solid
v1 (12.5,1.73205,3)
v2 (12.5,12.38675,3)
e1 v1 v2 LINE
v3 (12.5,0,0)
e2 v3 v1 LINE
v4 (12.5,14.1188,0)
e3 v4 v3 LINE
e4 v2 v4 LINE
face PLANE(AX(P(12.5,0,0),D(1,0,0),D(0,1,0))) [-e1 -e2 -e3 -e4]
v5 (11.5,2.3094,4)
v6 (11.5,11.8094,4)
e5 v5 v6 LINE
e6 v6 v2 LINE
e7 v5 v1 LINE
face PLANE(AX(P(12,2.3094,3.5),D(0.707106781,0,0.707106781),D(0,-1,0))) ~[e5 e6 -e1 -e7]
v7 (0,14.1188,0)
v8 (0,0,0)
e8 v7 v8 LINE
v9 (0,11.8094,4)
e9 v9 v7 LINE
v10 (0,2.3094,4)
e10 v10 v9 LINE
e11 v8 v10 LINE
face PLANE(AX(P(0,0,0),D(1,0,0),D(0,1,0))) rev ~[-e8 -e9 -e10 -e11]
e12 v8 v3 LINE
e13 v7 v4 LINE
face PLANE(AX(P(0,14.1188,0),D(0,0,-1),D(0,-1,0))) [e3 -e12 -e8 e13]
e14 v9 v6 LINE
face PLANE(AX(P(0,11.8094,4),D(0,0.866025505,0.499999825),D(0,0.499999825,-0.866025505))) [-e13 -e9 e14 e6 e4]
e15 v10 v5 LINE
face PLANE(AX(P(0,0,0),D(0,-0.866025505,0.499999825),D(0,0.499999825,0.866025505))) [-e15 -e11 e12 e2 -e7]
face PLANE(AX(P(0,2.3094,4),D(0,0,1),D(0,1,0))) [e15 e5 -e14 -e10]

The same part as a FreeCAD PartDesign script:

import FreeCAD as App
import Part
import Sketcher

V = App.Vector
Q = App.Units.Quantity


def edges_at(feature, points):
    """Names of the edges that pass closest to the given points."""
    edges = feature.Shape.Edges
    near = lambda p: min(range(len(edges)), key=lambda i: edges[i].distToShape(Part.Vertex(*p))[0])
    return sorted({f"Edge{near(p) + 1}" for p in points})

doc = App.newDocument("Part")
params = doc.addObject("Spreadsheet::Sheet", "Params")
for row, (alias, value) in enumerate([
    ("sketch1_width", "9.5 mm"),
    ("pad1_length", "12.5 mm"),
    ("chamfer_size", "1 mm"),
], start=1):
    params.set(f"A{row}", alias)
    params.set(f"B{row}", "=" + value)
    params.setAlias(f"B{row}", alias)

body = doc.addObject("PartDesign::Body", "Body")

sketch1 = body.newObject("Sketcher::SketchObject", "Sketch")
sketch1.AttachmentSupport = (doc.getObject("YZ_Plane"), [""])
sketch1.MapMode = "FlatFace"
sketch1.addGeometry([
    Part.LineSegment(V(2.3, 4, 0), V(0, 0, 0)),
    Part.LineSegment(V(0, 0, 0), V(14.1, 0, 0)),
    Part.LineSegment(V(14.1, 0, 0), V(11.8, 4, 0)),
    Part.LineSegment(V(11.8, 4, 0), V(2.3, 4, 0)),
], False)
sketch1.addConstraint([
    Sketcher.Constraint("Coincident", 0, 2, 1, 1),
    Sketcher.Constraint("Coincident", 1, 2, 2, 1),
    Sketcher.Constraint("Coincident", 2, 2, 3, 1),
    Sketcher.Constraint("Coincident", 3, 2, 0, 1),
    Sketcher.Constraint("Horizontal", 1),
    Sketcher.Constraint("Horizontal", 3),
    Sketcher.Constraint("Coincident", 0, 2, -1, 1),
    Sketcher.Constraint("Equal", 0, 2),
    Sketcher.Constraint("DistanceX", 3, 2, 3, 1, Q("9.5 mm")),
    Sketcher.Constraint("DistanceY", -1, 1, 2, 2, Q("4 mm")),
    Sketcher.Constraint("Angle", 0, Q("-120 deg")),
])
sketch1.setExpression("Constraints[8]", "Params.sketch1_width")
pad1 = body.newObject("PartDesign::Pad", "Pad")
pad1.Profile = sketch1
pad1.setExpression("Length", "Params.pad1_length")
doc.recompute()

chamfer = body.newObject("PartDesign::Chamfer", "Chamfer")
chamfer.Base = (pad1, edges_at(pad1, [(12.5, 7.059, 4)]))
chamfer.setExpression("Size", "Params.chamfer_size")

doc.recompute()
